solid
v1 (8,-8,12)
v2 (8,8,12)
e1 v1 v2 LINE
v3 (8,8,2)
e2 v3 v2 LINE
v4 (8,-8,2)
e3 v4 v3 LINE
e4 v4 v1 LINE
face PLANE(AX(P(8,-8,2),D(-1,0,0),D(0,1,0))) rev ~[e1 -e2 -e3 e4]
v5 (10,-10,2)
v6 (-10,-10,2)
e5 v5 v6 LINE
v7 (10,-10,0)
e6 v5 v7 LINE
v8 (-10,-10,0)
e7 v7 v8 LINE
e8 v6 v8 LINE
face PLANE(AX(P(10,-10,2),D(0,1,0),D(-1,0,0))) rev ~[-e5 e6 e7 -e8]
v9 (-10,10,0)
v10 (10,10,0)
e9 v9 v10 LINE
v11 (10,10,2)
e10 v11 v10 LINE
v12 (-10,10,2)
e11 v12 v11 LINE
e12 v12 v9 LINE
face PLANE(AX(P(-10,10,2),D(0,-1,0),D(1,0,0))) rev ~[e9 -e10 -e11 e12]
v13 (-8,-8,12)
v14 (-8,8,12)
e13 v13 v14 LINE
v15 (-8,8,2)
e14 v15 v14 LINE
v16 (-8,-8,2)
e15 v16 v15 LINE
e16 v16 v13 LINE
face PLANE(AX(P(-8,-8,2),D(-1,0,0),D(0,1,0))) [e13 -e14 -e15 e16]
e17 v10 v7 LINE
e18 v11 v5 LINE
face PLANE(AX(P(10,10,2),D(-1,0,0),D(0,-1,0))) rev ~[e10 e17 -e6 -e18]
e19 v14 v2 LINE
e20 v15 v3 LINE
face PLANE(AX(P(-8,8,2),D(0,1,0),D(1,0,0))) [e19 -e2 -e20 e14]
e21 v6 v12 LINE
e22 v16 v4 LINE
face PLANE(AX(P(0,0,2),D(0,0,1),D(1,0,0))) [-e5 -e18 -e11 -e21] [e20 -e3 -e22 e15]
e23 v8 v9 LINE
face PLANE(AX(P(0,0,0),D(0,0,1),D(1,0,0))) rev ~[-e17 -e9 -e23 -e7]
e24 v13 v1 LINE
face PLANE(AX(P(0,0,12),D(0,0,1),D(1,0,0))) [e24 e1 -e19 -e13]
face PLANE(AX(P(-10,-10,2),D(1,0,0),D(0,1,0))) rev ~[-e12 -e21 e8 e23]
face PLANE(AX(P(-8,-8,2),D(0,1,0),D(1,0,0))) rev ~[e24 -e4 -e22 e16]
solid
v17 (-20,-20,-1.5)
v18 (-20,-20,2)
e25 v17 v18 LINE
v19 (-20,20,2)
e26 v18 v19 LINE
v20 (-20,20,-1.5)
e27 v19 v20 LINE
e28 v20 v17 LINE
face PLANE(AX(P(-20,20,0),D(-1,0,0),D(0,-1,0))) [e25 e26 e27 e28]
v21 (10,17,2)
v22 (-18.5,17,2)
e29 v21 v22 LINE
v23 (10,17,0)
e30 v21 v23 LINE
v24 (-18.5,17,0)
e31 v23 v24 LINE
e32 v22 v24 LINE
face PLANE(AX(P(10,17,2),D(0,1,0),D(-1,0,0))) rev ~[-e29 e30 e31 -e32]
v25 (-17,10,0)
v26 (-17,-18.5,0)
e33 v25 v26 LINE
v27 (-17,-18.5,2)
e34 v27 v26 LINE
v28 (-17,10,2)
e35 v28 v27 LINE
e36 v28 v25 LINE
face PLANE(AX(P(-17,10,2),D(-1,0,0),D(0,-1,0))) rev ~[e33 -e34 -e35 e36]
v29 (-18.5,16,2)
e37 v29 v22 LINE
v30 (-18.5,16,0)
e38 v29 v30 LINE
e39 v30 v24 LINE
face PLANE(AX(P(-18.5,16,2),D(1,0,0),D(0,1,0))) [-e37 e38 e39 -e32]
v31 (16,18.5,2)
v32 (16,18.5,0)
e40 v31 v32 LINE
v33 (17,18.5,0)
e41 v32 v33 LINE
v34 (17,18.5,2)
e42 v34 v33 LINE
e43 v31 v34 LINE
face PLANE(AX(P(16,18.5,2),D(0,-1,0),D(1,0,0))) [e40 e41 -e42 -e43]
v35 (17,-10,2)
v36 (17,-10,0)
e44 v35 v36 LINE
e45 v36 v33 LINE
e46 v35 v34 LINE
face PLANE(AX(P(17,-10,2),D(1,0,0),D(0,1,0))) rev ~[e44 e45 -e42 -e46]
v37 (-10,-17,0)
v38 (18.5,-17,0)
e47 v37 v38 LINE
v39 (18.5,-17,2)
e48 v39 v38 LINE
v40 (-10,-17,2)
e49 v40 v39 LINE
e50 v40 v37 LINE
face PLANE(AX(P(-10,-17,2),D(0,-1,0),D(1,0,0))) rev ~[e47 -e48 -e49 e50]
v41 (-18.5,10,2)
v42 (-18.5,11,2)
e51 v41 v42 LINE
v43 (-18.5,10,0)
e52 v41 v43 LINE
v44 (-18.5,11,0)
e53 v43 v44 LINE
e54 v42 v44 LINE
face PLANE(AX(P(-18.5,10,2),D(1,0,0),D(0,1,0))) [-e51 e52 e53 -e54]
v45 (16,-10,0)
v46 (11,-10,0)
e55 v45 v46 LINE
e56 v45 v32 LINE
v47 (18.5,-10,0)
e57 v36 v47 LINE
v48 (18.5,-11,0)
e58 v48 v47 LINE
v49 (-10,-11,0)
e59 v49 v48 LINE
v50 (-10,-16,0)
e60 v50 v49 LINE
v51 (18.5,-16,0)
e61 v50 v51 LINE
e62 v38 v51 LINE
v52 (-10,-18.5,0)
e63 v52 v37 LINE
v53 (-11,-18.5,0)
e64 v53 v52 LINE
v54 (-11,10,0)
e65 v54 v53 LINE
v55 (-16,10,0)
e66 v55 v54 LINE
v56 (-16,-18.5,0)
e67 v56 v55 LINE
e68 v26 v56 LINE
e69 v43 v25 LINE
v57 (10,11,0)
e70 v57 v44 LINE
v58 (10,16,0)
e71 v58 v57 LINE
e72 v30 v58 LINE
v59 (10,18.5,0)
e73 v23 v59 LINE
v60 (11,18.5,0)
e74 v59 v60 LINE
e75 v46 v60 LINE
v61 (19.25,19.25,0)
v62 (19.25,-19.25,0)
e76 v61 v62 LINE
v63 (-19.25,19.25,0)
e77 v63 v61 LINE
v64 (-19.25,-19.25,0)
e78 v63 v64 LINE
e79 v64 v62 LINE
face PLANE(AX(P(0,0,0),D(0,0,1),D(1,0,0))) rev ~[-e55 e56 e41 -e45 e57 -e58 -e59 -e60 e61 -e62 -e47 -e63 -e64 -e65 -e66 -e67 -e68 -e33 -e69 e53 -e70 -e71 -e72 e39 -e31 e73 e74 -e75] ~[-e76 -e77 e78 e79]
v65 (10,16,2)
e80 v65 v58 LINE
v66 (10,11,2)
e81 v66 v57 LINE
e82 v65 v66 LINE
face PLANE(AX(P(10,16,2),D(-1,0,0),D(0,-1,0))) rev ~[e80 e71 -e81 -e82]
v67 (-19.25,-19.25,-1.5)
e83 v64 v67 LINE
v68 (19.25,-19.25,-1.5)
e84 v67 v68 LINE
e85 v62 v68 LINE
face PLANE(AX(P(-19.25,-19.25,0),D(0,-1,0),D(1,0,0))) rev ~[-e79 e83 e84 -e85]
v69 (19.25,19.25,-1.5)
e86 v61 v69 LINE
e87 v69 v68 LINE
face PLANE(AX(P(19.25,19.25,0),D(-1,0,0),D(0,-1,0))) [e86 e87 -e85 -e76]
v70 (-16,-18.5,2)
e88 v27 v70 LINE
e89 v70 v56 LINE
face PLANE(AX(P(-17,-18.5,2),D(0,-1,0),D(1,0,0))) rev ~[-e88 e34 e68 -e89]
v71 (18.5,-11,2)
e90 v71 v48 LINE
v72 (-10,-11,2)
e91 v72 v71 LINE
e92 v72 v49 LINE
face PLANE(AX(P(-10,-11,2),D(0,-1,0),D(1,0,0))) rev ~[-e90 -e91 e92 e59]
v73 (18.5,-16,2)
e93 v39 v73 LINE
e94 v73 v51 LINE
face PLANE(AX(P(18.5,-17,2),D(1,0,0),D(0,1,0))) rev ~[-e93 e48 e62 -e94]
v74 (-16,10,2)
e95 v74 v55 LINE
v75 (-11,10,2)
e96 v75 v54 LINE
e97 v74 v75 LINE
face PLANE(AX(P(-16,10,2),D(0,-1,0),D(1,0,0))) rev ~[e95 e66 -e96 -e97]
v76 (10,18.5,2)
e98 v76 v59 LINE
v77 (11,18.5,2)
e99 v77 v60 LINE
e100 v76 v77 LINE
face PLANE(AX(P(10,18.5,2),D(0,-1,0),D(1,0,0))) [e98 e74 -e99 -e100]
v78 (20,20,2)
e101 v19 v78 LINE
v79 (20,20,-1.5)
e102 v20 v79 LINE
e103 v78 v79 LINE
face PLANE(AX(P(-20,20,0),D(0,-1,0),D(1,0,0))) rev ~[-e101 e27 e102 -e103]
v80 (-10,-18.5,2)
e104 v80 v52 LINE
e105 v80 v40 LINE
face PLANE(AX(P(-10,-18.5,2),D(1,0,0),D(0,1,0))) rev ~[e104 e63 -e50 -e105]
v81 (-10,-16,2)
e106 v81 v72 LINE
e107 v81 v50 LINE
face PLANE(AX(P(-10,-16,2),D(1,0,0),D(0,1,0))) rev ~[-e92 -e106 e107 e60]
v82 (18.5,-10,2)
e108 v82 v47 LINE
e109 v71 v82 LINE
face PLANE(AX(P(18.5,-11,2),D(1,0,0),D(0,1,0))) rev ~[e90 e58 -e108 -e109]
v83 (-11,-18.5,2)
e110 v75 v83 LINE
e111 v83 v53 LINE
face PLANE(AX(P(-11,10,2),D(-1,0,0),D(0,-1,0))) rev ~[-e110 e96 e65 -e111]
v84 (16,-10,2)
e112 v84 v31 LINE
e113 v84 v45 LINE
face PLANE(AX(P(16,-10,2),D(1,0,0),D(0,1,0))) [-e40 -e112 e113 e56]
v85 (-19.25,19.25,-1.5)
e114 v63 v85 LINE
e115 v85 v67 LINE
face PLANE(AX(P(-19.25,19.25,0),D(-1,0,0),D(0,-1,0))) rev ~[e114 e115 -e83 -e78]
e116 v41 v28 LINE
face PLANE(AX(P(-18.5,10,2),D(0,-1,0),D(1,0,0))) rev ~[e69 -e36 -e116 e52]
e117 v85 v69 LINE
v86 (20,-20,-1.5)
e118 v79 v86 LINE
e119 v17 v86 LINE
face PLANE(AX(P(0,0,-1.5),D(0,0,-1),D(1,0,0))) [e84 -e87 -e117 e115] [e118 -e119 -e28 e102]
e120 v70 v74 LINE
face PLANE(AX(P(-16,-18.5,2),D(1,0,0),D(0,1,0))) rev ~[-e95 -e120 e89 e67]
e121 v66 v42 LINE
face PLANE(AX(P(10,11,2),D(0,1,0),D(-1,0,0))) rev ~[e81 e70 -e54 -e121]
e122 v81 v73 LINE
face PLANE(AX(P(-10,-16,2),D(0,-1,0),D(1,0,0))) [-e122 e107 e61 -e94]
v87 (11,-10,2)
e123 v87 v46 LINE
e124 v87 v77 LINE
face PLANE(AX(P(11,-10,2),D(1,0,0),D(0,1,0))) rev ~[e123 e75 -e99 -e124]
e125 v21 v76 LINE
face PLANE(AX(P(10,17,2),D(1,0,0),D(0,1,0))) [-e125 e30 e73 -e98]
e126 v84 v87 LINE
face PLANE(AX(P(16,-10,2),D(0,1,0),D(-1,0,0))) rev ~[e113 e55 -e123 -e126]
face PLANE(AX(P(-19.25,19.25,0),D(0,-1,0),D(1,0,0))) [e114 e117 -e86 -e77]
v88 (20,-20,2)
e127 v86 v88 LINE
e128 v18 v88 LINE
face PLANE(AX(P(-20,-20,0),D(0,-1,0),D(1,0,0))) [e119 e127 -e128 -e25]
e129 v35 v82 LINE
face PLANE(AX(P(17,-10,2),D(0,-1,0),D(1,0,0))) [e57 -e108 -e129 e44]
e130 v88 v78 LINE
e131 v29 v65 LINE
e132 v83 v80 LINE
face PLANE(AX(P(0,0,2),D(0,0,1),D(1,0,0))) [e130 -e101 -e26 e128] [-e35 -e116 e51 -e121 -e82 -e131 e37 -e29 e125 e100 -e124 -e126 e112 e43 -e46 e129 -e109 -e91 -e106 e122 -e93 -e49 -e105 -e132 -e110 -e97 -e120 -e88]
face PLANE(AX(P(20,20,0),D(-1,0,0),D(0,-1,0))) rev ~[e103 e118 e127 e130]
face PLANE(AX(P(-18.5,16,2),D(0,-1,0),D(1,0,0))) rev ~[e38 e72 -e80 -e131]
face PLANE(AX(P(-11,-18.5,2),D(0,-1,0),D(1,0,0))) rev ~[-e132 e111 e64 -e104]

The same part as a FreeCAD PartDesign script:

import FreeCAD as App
import Part
import Sketcher

V = App.Vector


def add_polygon(sketch, points):
    """Adds a closed chain of lines whose ends are joined by coincident constraints."""
    first, n = sketch.GeometryCount, len(points)
    for a, b in zip(points, points[1:] + points[:1]):
        sketch.addGeometry(Part.LineSegment(App.Vector(*a, 0), App.Vector(*b, 0)), False)
    for i in range(n):
        sketch.addConstraint(Sketcher.Constraint("Coincident", first + i, 2, first + (i + 1) % n, 1))

doc = App.newDocument("Part")
body = doc.addObject("PartDesign::Body", "Body")
body.AllowCompound = True

# Sketch on XY plane
sketch1 = doc.addObject("Sketcher::SketchObject", "Sketch")
body.addObject(sketch1)
sketch1.AttachmentSupport = (doc.XY_Plane, [""])
sketch1.MapMode = "FlatFace"
add_polygon(sketch1, [(-20, 20), (-20, -20), (20, -20), (20, 20)])  # lines 0-3
sketch1.addConstraint(Sketcher.Constraint("Vertical", 0))
sketch1.addConstraint(Sketcher.Constraint("Horizontal", 1))
sketch1.addConstraint(Sketcher.Constraint("Vertical", 2))
sketch1.addConstraint(Sketcher.Constraint("Horizontal", 3))
sketch1.addConstraint(Sketcher.Constraint("Symmetric", 0, 2, 2, 2, -1, 1))
sketch1.addConstraint(Sketcher.Constraint("Equal", 3, 0))
sketch1.addConstraint(Sketcher.Constraint("DistanceX", 1, 1, 1, 2, 40.0))
pad1 = doc.addObject("PartDesign::Pad", "Pad")
body.addObject(pad1)
pad1.Profile = sketch1
pad1.Length = 2

# Sketch on XY plane
sketch2 = doc.addObject("Sketcher::SketchObject", "Sketch001")
body.addObject(sketch2)
sketch2.AttachmentSupport = (doc.XY_Plane, [""])
sketch2.MapMode = "FlatFace"
add_polygon(sketch2, [(-20, -20), (-20, 20), (20, 20), (20, -20)])  # lines 0-3
add_polygon(sketch2, [(19, 19), (-19, 19), (-19, -19), (19, -19)])  # lines 4-7
sketch2.addConstraint(Sketcher.Constraint("Vertical", 0))
sketch2.addConstraint(Sketcher.Constraint("Horizontal", 1))
sketch2.addConstraint(Sketcher.Constraint("Vertical", 2))
sketch2.addConstraint(Sketcher.Constraint("Horizontal", 3))
sketch2.addConstraint(Sketcher.Constraint("Horizontal", 4))
sketch2.addConstraint(Sketcher.Constraint("Vertical", 5))
sketch2.addConstraint(Sketcher.Constraint("Horizontal", 6))
sketch2.addConstraint(Sketcher.Constraint("Vertical", 7))
sketch2.addConstraint(Sketcher.Constraint("Symmetric", 0, 2, 2, 2, -1, 1))
sketch2.addConstraint(Sketcher.Constraint("Symmetric", 4, 2, 6, 2, -1, 1))
sketch2.addConstraint(Sketcher.Constraint("Equal", 3, 0))
sketch2.addConstraint(Sketcher.Constraint("Equal", 6, 5))
sketch2.addConstraint(Sketcher.Constraint("DistanceX", 1, 1, 1, 2, 40.0))
sketch2.addConstraint(Sketcher.Constraint("DistanceX", 4, 2, 4, 1, 38.5))
pad2 = doc.addObject("PartDesign::Pad", "Pad001")
body.addObject(pad2)
pad2.Profile = sketch2
pad2.Length = 1.5
pad2.Reversed = True

# Sketch on XY plane
sketch3 = doc.addObject("Sketcher::SketchObject", "Sketch002")
body.addObject(sketch3)
sketch3.AttachmentSupport = (doc.XY_Plane, [""])
sketch3.MapMode = "FlatFace"
sketch3.AttachmentOffset = App.Placement(V(0, 0, 2), App.Rotation())
add_polygon(sketch3, [(-11, 10), (-11, -18.5), (-10, -18.5), (-10, -17), (18.5, -17), (18.5, -16), (-10, -16), (-10, -11), (18.5, -11), (18.5, -10), (17, -10), (17, 18.5), (16, 18.5), (16, -10), (11, -10), (11, 18.5), (10, 18.5), (10, 17), (-18.5, 17), (-18.5, 16), (10, 16), (10, 11), (-18.5, 11), (-18.5, 10), (-17, 10), (-17, -18.5), (-16, -18.5), (-16, 10)])  # lines 0-27
add_polygon(sketch3, [(10, -10), (-10, -10), (-10, 10), (10, 10)])  # lines 28-31
sketch3.addConstraint(Sketcher.Constraint("Vertical", 0))
sketch3.addConstraint(Sketcher.Constraint("Horizontal", 1))
sketch3.addConstraint(Sketcher.Constraint("Vertical", 2))
sketch3.addConstraint(Sketcher.Constraint("Horizontal", 3))
sketch3.addConstraint(Sketcher.Constraint("Vertical", 4))
sketch3.addConstraint(Sketcher.Constraint("Horizontal", 5))
sketch3.addConstraint(Sketcher.Constraint("Vertical", 6))
sketch3.addConstraint(Sketcher.Constraint("Horizontal", 7))
sketch3.addConstraint(Sketcher.Constraint("Vertical", 8))
sketch3.addConstraint(Sketcher.Constraint("Horizontal", 9))
sketch3.addConstraint(Sketcher.Constraint("Vertical", 10))
sketch3.addConstraint(Sketcher.Constraint("Horizontal", 11))
sketch3.addConstraint(Sketcher.Constraint("Vertical", 12))
sketch3.addConstraint(Sketcher.Constraint("Horizontal", 13))
sketch3.addConstraint(Sketcher.Constraint("Vertical", 14))
sketch3.addConstraint(Sketcher.Constraint("Horizontal", 15))
sketch3.addConstraint(Sketcher.Constraint("Vertical", 16))
sketch3.addConstraint(Sketcher.Constraint("Horizontal", 17))
sketch3.addConstraint(Sketcher.Constraint("Vertical", 18))
sketch3.addConstraint(Sketcher.Constraint("Horizontal", 19))
sketch3.addConstraint(Sketcher.Constraint("Vertical", 20))
sketch3.addConstraint(Sketcher.Constraint("Horizontal", 21))
sketch3.addConstraint(Sketcher.Constraint("Vertical", 22))
sketch3.addConstraint(Sketcher.Constraint("Horizontal", 23))
sketch3.addConstraint(Sketcher.Constraint("Vertical", 24))
sketch3.addConstraint(Sketcher.Constraint("Horizontal", 25))
sketch3.addConstraint(Sketcher.Constraint("Vertical", 26))
sketch3.addConstraint(Sketcher.Constraint("Horizontal", 27))
sketch3.addConstraint(Sketcher.Constraint("Horizontal", 28))
sketch3.addConstraint(Sketcher.Constraint("Vertical", 29))
sketch3.addConstraint(Sketcher.Constraint("Horizontal", 30))
sketch3.addConstraint(Sketcher.Constraint("Vertical", 31))
sketch3.addConstraint(Sketcher.Constraint("Symmetric", 0, 2, 14, 2, -1, 1))
sketch3.addConstraint(Sketcher.Constraint("Symmetric", 2, 2, 16, 2, -1, 1))
sketch3.addConstraint(Sketcher.Constraint("Symmetric", 4, 2, 18, 2, -1, 1))
sketch3.addConstraint(Sketcher.Constraint("Symmetric", 6, 2, 20, 2, -1, 1))
sketch3.addConstraint(Sketcher.Constraint("Symmetric", 8, 2, 22, 2, -1, 1))
sketch3.addConstraint(Sketcher.Constraint("Symmetric", 10, 2, 24, 2, -1, 1))
sketch3.addConstraint(Sketcher.Constraint("Symmetric", 12, 2, 26, 2, -1, 1))
sketch3.addConstraint(Sketcher.Constraint("Symmetric", 28, 2, 30, 2, -1, 1))
sketch3.addConstraint(Sketcher.Constraint("Horizontal", 9, 2, 12, 2))
sketch3.addConstraint(Sketcher.Constraint("Horizontal", 11, 2, 14, 2))
sketch3.addConstraint(Sketcher.Constraint("Horizontal", 13, 2, 28, 2))
sketch3.addConstraint(Sketcher.Constraint("Vertical", 2, 2, 5, 2))
sketch3.addConstraint(Sketcher.Constraint("Vertical", 4, 2, 7, 2))
sketch3.addConstraint(Sketcher.Constraint("Vertical", 6, 2, 28, 2))
sketch3.addConstraint(Sketcher.Constraint("Equal", 1, 11))
sketch3.addConstraint(Sketcher.Constraint("Equal", 21, 0))
sketch3.addConstraint(Sketcher.Constraint("Equal", 23, 2))
sketch3.addConstraint(Sketcher.Constraint("Equal", 25, 4))
sketch3.addConstraint(Sketcher.Constraint("Equal", 27, 6))
sketch3.addConstraint(Sketcher.Constraint("Equal", 4, 8))
sketch3.addConstraint(Sketcher.Constraint("DistanceX", 1, 1, 1, 2, 1.0))
sketch3.addConstraint(Sketcher.Constraint("DistanceX", 13, 2, 13, 1, 5.0))
sketch3.addConstraint(Sketcher.Constraint("DistanceX", 28, 2, 28, 1, 20.0))
sketch3.addConstraint(Sketcher.Constraint("DistanceX", 3, 1, 3, 2, 28.5))
pocket1 = doc.addObject("PartDesign::Pocket", "Pocket")
body.addObject(pocket1)
pocket1.Profile = sketch3
pocket1.Type = "ThroughAll"

# Sketch on XY plane
sketch4 = doc.addObject("Sketcher::SketchObject", "Sketch003")
body.addObject(sketch4)
sketch4.AttachmentSupport = (doc.XY_Plane, [""])
sketch4.MapMode = "FlatFace"
sketch4.AttachmentOffset = App.Placement(V(0, 0, 2), App.Rotation())
add_polygon(sketch4, [(-8, 8), (-8, -8), (8, -8), (8, 8)])  # lines 0-3
sketch4.addConstraint(Sketcher.Constraint("Vertical", 0))
sketch4.addConstraint(Sketcher.Constraint("Horizontal", 1))
sketch4.addConstraint(Sketcher.Constraint("Vertical", 2))
sketch4.addConstraint(Sketcher.Constraint("Horizontal", 3))
sketch4.addConstraint(Sketcher.Constraint("Symmetric", 0, 2, 2, 2, -1, 1))
sketch4.addConstraint(Sketcher.Constraint("Equal", 3, 0))
sketch4.addConstraint(Sketcher.Constraint("DistanceX", 1, 1, 1, 2, 16.0))
pad3 = doc.addObject("PartDesign::Pad", "Pad002")
body.addObject(pad3)
pad3.Profile = sketch4
pad3.Length = 10

doc.recompute()
